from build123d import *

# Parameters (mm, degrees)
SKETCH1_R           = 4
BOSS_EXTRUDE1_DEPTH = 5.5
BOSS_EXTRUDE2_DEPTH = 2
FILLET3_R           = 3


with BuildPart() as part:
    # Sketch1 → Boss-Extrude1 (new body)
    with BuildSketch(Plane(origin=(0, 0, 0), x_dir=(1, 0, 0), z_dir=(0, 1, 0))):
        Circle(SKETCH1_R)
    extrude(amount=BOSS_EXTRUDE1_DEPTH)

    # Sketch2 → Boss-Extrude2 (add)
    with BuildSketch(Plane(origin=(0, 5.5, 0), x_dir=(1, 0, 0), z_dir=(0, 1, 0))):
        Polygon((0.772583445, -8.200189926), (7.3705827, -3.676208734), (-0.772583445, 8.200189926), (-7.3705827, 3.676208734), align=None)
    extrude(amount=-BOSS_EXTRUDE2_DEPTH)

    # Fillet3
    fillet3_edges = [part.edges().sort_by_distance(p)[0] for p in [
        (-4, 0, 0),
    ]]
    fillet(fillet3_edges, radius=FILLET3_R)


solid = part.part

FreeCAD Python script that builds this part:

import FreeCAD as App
import Part
import Sketcher
from FreeCAD import Vector
Q = App.Units.Quantity


def edges_at(feature, points):
    """Names of the edges that pass closest to the given points."""
    edges = feature.Shape.Edges
    near = lambda p: min(range(len(edges)), key=lambda i: edges[i].distToShape(Part.Vertex(*p))[0])
    return sorted({f"Edge{near(p) + 1}" for p in points})


def add_polygon(sketch, points):
    """Adds a closed chain of lines whose ends are joined by coincident constraints."""
    first, n = sketch.GeometryCount, len(points)
    for a, b in zip(points, points[1:] + points[:1]):
        sketch.addGeometry(Part.LineSegment(App.Vector(*a, 0), App.Vector(*b, 0)), False)
    for i in range(n):
        sketch.addConstraint(Sketcher.Constraint("Coincident", first + i, 2, first + (i + 1) % n, 1))

doc = App.newDocument("Part")
body = doc.addObject("PartDesign::Body", "Body")

# Sketch on XZ plane
sketch1 = body.newObject("Sketcher::SketchObject", "Sketch")
sketch1.AttachmentSupport = (doc.getObject("XZ_Plane"), [""])
sketch1.MapMode = "FlatFace"
sketch1.addGeometry(Part.Circle(Vector(0, 0, 0), Vector(0, 0, 1), 4), False)
sketch1.addConstraint([
    Sketcher.Constraint("Coincident", 0, 3, -1, 1),
    Sketcher.Constraint("Diameter", 0, Q("8 mm")),
])
pad1 = body.newObject("PartDesign::Pad", "Pad")
pad1.Profile = sketch1
pad1.Length = 5.5
pad1.Reversed = True

# Sketch on XZ plane
sketch2 = body.newObject("Sketcher::SketchObject", "Sketch001")
sketch2.AttachmentSupport = (doc.getObject("XZ_Plane"), [""])
sketch2.MapMode = "FlatFace"
sketch2.AttachmentOffset = App.Placement(Vector(0, 0, -5.5), App.Rotation())
add_polygon(sketch2, [(1, 8), (7, 4), (-1, -8), (-7, -4)])  # lines 0-3
sketch2.addConstraint([
    Sketcher.Constraint("Symmetric", 0, 2, 2, 2, -1, 1),
    Sketcher.Constraint("Symmetric", 1, 2, 3, 2, -1, 1),
    Sketcher.Constraint("Perpendicular", 0, 1),
    Sketcher.Constraint("Distance", 0, Q("8 mm")),
    Sketcher.Constraint("Distance", 1, Q("14.4 mm")),
    Sketcher.Constraint("DistanceX", 2, 2, 1, 2, Q("6.597999 mm")),
])
pad2 = body.newObject("PartDesign::Pad", "Pad001")
pad2.Profile = sketch2
pad2.Length = 2
doc.recompute()

fillet = body.newObject("PartDesign::Fillet", "Fillet")
fillet.Base = (pad2, edges_at(pad2, [(-4, 0, 0)]))
fillet.Radius = 3

doc.recompute()
